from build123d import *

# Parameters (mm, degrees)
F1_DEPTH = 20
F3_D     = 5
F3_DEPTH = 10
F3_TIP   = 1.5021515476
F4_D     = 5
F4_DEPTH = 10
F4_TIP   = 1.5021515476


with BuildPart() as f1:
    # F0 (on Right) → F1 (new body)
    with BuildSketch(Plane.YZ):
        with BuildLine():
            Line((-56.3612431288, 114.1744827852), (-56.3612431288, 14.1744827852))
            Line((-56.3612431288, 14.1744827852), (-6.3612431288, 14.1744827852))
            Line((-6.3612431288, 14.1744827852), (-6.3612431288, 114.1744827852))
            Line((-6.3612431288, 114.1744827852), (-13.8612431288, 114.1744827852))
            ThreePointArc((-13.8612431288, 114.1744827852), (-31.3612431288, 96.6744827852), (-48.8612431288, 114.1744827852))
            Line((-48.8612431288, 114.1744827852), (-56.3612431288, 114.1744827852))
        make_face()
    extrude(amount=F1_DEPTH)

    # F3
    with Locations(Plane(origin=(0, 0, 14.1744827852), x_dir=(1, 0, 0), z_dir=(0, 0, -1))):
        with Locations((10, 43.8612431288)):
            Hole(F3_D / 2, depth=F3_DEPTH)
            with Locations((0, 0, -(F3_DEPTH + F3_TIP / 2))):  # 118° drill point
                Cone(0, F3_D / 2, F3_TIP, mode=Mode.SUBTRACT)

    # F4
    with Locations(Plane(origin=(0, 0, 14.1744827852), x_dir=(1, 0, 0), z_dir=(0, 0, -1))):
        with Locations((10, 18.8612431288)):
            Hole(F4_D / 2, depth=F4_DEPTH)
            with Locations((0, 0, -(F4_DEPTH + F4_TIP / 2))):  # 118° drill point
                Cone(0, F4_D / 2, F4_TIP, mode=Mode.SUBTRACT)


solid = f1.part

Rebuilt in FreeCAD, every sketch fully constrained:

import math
import FreeCAD as App
import Part
import Sketcher

doc = App.newDocument("Part")
params = doc.addObject("Spreadsheet::Sheet", "Params")
for row, (alias, value) in enumerate([
    ("sketch1_radius", "17.5 mm"),
    ("sketch1_width", "50 mm"),
    ("sketch1_height", "100 mm"),
    ("pad1_length", "20 mm"),
    ("sketch2_diameter", "5 mm"),
    ("hole_diameter", "5 mm"),
    ("hole_depth", "10 mm"),
    ("sketch3_diameter", "5 mm"),
    ("hole2_diameter", "5 mm"),
    ("hole2_depth", "10 mm"),
], start=1):
    params.set(f"A{row}", alias)
    params.set(f"B{row}", "=" + value)
    params.setAlias(f"B{row}", alias)

body = doc.addObject("PartDesign::Body", "Body")

sketch1 = body.newObject("Sketcher::SketchObject", "Sketch")
sketch1.AttachmentSupport = (doc.getObject("YZ_Plane"), [""])
sketch1.MapMode = "FlatFace"
sketch1.addGeometry([
    Part.LineSegment(App.Vector(-56, 114, 0), App.Vector(-56, 14, 0)),
    Part.LineSegment(App.Vector(-56, 14, 0), App.Vector(-6, 14, 0)),
    Part.LineSegment(App.Vector(-6, 14, 0), App.Vector(-6, 114, 0)),
    Part.LineSegment(App.Vector(-6, 114, 0), App.Vector(-14, 114, 0)),
    Part.ArcOfCircle(Part.Circle(App.Vector(-31, 114, 0), App.Vector(0, 0, 1), 18), math.radians(180), math.radians(360)),
    Part.LineSegment(App.Vector(-49, 114, 0), App.Vector(-56, 114, 0)),
], False)
sketch1.addConstraint([
    Sketcher.Constraint("Coincident", 0, 2, 1, 1),
    Sketcher.Constraint("Coincident", 1, 2, 2, 1),
    Sketcher.Constraint("Coincident", 2, 2, 3, 1),
    Sketcher.Constraint("Coincident", 3, 2, 4, 2),
    Sketcher.Constraint("Coincident", 4, 1, 5, 1),
    Sketcher.Constraint("Coincident", 5, 2, 0, 1),
    Sketcher.Constraint("Vertical", 0),
    Sketcher.Constraint("Horizontal", 1),
    Sketcher.Constraint("Vertical", 2),
    Sketcher.Constraint("Horizontal", 3),
    Sketcher.Constraint("Horizontal", 5),
    Sketcher.Constraint("Horizontal", 4, 3, 2, 2),
    Sketcher.Constraint("Horizontal", 3, 2, 4, 1),
    Sketcher.Constraint("Equal", 3, 5),
    Sketcher.Constraint("Radius", 4, 17.5),
    Sketcher.Constraint("DistanceX", 1, 1, 1, 2, 50.0),
    Sketcher.Constraint("DistanceY", 0, 2, 0, 1, 100.0),
    Sketcher.Constraint("DistanceX", 4, 3, -1, 1, 31.361243),
    Sketcher.Constraint("DistanceY", -1, 1, 4, 3, 114.174483),
])
sketch1.setExpression("Constraints[14]", "Params.sketch1_radius")
sketch1.setExpression("Constraints[15]", "Params.sketch1_width")
sketch1.setExpression("Constraints[16]", "Params.sketch1_height")
pad1 = body.newObject("PartDesign::Pad", "Pad")
pad1.Profile = sketch1
pad1.setExpression("Length", "Params.pad1_length")

sketch2 = body.newObject("Sketcher::SketchObject", "Sketch001")
sketch2.AttachmentSupport = (doc.getObject("XY_Plane"), [""])
sketch2.MapMode = "FlatFace"
sketch2.AttachmentOffset = App.Placement(App.Vector(0, 0, 14.174483), App.Rotation())
sketch2.addGeometry(Part.Circle(App.Vector(10, -43.9, 0), App.Vector(0, 0, 1), 2.5), False)
sketch2.addConstraint([
    Sketcher.Constraint("Diameter", 0, 5.0),
    Sketcher.Constraint("DistanceX", -1, 1, 0, 3, 10.0),
    Sketcher.Constraint("DistanceY", 0, 3, -1, 1, 43.861243),
])
sketch2.setExpression("Constraints[0]", "Params.sketch2_diameter")
doc.recompute()
hole = body.newObject("PartDesign::Hole", "Hole")
hole.Profile = sketch2
hole.ThreadType = "None"
hole.setExpression("Diameter", "Params.hole_diameter")
hole.DepthType = "Dimension"
hole.setExpression("Depth", "Params.hole_depth")
hole.DrillPoint = "Angled"
hole.DrillPointAngle = 118
hole.Reversed = True

sketch3 = body.newObject("Sketcher::SketchObject", "Sketch002")
sketch3.AttachmentSupport = (doc.getObject("XY_Plane"), [""])
sketch3.MapMode = "FlatFace"
sketch3.AttachmentOffset = App.Placement(App.Vector(0, 0, 14.174483), App.Rotation())
sketch3.addGeometry(Part.Circle(App.Vector(10, -18.9, 0), App.Vector(0, 0, 1), 2.5), False)
sketch3.addConstraint([
    Sketcher.Constraint("Diameter", 0, 5.0),
    Sketcher.Constraint("DistanceX", -1, 1, 0, 3, 10.0),
    Sketcher.Constraint("DistanceY", 0, 3, -1, 1, 18.861243),
])
sketch3.setExpression("Constraints[0]", "Params.sketch3_diameter")
doc.recompute()
hole2 = body.newObject("PartDesign::Hole", "Hole001")
hole2.Profile = sketch3
hole2.ThreadType = "None"
hole2.setExpression("Diameter", "Params.hole2_diameter")
hole2.DepthType = "Dimension"
hole2.setExpression("Depth", "Params.hole2_depth")
hole2.DrillPoint = "Angled"
hole2.DrillPointAngle = 118
hole2.Reversed = True

doc.recompute()
